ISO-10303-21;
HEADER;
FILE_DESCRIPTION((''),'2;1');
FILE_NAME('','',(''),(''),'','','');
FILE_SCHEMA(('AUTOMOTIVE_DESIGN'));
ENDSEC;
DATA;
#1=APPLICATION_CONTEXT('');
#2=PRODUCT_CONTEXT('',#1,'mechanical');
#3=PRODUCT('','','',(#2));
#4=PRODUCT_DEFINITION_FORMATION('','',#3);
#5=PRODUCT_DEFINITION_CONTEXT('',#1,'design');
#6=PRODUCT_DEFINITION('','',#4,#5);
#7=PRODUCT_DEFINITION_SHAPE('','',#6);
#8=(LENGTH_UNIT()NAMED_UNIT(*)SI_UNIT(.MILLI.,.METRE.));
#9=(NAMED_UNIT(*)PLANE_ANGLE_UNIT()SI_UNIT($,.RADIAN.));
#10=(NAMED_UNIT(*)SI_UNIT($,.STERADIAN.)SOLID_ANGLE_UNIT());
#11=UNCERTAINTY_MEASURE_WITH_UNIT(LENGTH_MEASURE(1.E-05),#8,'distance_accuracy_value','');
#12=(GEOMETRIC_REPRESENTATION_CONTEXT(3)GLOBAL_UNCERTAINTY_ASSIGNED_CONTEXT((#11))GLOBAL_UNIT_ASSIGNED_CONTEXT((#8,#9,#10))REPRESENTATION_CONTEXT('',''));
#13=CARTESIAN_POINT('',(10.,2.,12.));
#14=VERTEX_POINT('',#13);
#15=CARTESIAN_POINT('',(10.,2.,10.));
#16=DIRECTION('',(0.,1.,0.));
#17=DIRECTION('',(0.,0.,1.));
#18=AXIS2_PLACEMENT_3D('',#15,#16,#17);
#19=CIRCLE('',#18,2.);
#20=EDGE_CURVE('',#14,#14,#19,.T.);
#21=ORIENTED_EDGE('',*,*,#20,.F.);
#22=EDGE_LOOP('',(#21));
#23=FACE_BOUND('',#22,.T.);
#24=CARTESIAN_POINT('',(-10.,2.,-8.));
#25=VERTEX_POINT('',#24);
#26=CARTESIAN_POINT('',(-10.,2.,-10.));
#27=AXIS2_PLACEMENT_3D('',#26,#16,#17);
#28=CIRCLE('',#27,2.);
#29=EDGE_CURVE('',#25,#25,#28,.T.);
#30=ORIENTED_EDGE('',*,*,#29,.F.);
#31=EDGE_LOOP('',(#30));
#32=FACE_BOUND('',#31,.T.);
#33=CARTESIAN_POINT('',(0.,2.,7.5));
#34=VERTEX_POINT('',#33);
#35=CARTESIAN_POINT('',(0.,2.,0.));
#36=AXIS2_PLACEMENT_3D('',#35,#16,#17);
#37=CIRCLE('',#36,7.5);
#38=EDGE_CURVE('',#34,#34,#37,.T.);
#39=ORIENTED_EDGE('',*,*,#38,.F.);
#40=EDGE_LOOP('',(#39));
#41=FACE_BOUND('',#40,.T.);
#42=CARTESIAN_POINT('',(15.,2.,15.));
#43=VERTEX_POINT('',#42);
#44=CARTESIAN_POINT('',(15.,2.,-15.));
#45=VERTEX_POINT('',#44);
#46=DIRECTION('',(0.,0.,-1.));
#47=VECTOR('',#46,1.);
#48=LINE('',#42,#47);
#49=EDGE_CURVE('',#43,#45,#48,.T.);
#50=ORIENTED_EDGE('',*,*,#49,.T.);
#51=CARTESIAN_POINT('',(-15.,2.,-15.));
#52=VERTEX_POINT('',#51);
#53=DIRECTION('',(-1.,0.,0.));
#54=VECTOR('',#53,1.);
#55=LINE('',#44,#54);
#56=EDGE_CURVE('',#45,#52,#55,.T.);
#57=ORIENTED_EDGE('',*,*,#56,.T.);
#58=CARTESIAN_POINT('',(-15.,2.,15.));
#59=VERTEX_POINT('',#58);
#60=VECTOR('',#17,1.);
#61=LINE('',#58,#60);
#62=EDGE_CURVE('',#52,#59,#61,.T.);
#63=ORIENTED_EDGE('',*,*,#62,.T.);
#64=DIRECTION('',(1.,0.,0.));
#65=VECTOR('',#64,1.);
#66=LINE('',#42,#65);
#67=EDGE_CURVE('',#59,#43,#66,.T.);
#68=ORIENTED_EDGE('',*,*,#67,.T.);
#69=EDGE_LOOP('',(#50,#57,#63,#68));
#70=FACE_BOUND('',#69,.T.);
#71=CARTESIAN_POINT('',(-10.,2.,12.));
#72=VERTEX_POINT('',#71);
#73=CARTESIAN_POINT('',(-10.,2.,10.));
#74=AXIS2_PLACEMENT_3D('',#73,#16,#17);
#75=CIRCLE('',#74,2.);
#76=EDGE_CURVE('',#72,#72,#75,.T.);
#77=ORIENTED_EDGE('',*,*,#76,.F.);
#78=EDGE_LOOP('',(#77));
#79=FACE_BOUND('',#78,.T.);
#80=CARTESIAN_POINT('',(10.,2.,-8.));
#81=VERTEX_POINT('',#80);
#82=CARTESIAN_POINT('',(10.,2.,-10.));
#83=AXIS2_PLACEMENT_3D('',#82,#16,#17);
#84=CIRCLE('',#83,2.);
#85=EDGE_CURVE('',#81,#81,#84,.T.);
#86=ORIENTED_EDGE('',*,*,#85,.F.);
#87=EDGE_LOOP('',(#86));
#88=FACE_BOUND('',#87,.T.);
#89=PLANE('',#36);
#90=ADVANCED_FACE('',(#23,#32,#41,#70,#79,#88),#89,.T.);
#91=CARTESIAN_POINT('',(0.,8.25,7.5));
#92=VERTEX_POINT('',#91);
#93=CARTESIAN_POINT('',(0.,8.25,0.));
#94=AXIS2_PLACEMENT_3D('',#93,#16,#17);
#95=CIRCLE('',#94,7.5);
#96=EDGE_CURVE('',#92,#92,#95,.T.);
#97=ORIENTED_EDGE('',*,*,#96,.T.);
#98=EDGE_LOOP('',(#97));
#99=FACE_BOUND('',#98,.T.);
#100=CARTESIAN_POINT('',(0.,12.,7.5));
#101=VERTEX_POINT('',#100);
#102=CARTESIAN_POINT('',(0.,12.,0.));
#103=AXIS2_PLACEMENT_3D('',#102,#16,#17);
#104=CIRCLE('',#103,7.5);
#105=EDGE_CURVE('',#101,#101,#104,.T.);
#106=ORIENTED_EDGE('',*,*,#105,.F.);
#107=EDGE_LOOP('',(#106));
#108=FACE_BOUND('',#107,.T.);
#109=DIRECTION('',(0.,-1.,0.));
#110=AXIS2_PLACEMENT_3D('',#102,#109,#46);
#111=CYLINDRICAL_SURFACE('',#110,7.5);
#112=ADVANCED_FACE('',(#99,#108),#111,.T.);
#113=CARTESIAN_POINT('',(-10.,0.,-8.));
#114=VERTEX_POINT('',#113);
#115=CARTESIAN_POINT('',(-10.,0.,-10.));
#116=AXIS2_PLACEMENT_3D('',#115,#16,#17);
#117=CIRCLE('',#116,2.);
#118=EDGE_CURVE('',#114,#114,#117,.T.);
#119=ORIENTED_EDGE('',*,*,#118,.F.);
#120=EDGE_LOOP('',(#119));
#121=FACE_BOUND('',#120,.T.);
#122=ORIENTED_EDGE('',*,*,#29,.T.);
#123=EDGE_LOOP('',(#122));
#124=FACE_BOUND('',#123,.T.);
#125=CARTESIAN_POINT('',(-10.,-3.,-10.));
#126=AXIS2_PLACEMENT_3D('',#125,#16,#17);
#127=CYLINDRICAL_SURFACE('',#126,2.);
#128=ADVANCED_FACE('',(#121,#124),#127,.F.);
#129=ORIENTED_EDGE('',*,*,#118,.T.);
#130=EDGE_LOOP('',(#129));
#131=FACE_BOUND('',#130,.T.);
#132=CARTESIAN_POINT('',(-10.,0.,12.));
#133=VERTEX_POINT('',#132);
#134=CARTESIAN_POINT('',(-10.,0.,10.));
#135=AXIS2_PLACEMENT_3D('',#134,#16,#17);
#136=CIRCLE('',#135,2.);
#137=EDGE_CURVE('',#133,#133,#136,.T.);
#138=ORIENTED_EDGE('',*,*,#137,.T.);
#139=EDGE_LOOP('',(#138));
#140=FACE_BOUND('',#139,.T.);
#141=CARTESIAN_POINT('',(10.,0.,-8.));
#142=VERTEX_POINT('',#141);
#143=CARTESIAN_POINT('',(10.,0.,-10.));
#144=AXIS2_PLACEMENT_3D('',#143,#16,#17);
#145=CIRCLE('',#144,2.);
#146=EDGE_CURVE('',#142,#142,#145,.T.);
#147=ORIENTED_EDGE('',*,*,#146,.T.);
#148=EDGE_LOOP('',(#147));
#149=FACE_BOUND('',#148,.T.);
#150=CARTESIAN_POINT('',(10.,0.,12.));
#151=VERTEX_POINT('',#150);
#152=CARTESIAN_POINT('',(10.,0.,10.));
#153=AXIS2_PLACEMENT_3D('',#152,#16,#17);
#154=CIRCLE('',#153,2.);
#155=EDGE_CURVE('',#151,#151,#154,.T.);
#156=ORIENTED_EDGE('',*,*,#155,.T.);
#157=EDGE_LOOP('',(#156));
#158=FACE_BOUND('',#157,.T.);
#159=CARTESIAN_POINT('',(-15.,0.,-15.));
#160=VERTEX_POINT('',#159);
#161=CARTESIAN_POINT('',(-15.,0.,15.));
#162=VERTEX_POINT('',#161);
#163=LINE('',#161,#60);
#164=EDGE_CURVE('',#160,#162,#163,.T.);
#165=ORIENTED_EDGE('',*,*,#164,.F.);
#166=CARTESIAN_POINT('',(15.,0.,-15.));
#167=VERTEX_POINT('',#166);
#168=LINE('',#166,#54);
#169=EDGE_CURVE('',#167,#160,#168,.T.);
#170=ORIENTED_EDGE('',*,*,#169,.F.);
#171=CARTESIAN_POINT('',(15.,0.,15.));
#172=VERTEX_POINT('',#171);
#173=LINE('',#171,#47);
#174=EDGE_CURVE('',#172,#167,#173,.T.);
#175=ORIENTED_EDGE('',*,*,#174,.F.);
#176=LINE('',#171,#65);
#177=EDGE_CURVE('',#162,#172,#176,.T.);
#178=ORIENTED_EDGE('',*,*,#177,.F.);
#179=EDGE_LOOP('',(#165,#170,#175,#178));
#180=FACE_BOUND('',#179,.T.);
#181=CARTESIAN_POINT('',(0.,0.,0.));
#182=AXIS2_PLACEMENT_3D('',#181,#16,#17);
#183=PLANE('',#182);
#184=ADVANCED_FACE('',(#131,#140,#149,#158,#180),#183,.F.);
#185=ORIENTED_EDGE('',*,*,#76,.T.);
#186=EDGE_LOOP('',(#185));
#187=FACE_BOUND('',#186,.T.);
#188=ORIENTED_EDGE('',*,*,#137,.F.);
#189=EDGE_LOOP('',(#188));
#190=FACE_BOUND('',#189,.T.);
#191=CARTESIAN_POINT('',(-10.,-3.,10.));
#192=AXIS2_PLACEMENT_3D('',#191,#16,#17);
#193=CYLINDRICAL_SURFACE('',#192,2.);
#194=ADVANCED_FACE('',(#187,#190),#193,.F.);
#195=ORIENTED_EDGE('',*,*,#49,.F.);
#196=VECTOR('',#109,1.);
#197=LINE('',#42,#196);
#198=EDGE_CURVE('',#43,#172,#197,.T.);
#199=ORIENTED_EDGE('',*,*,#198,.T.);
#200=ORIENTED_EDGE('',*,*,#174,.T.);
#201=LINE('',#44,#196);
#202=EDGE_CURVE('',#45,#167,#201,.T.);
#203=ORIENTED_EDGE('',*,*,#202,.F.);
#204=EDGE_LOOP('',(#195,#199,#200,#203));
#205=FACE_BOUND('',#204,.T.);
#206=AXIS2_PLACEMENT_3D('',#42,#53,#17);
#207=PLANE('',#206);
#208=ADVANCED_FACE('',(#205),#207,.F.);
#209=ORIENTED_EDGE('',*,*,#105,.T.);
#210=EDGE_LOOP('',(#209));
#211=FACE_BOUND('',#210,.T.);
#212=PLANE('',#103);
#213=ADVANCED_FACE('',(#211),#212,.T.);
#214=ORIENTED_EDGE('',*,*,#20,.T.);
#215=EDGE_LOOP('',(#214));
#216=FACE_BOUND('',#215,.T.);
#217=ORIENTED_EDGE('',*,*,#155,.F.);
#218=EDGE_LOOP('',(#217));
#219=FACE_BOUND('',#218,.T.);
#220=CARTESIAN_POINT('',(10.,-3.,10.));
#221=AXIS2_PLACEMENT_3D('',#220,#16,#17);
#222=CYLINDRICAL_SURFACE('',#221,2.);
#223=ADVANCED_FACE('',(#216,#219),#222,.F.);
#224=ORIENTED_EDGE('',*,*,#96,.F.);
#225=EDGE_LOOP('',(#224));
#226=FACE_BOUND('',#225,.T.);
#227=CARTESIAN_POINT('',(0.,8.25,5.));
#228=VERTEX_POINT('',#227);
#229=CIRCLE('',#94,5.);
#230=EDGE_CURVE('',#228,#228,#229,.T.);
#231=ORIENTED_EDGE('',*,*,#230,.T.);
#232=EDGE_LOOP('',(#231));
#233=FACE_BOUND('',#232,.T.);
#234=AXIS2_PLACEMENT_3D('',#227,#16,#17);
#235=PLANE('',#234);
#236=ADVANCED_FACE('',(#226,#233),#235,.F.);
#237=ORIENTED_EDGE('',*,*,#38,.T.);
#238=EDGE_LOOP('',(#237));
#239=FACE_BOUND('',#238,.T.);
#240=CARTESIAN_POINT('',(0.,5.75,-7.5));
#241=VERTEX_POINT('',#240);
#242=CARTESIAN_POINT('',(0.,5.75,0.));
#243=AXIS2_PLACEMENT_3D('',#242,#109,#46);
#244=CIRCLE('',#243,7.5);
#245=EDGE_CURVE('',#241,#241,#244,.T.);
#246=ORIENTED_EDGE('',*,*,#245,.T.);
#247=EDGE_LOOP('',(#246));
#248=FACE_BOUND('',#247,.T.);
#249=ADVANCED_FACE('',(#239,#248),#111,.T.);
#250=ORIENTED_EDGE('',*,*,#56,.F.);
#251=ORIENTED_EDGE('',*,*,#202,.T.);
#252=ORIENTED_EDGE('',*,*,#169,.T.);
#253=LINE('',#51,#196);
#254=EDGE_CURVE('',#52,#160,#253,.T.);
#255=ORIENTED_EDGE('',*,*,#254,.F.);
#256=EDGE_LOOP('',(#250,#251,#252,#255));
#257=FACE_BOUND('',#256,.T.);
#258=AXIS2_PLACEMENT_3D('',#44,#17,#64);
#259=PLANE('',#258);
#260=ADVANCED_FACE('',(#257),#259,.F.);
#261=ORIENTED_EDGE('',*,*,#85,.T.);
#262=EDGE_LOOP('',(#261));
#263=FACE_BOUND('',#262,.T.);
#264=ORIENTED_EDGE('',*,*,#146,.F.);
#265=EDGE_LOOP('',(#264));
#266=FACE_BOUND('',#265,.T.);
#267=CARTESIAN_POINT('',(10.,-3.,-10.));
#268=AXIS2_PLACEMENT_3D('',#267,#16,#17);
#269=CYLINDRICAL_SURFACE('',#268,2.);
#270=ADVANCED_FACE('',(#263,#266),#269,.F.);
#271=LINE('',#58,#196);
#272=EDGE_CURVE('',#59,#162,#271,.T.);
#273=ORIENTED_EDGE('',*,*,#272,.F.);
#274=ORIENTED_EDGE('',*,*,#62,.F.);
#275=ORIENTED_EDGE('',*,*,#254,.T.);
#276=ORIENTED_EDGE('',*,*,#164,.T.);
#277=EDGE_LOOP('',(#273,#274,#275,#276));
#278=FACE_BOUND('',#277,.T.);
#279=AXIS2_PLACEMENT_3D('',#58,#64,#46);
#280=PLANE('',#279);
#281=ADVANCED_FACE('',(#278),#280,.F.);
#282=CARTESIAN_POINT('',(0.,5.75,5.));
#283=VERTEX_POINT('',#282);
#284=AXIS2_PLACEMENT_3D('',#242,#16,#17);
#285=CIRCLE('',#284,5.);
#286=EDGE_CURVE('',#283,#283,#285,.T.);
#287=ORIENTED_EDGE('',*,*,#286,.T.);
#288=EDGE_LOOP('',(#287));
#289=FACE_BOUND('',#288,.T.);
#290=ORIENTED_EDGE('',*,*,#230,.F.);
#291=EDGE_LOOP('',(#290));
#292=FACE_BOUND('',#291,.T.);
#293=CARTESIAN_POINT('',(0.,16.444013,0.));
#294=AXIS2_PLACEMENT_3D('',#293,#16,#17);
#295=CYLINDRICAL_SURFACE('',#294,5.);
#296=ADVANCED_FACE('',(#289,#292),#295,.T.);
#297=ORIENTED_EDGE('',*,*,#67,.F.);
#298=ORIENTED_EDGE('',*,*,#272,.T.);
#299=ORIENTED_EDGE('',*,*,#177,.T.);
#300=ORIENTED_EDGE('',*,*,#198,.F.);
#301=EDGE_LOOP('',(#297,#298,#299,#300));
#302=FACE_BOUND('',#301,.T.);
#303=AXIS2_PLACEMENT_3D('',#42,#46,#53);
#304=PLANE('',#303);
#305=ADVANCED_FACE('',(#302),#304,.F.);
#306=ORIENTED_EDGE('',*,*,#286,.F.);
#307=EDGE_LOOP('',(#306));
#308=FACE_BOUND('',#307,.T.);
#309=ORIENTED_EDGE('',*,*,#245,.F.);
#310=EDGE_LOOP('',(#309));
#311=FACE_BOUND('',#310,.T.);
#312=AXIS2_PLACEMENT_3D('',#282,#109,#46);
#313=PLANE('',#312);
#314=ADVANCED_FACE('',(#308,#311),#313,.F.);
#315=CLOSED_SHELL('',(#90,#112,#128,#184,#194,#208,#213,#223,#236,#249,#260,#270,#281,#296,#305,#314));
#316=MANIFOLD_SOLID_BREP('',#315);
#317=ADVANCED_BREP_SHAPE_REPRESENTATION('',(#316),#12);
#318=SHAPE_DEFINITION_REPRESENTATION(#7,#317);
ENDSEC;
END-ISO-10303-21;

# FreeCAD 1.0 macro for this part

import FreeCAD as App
import Part
import Sketcher
Q = App.Units.Quantity

doc = App.newDocument("Part")
params = doc.addObject("Spreadsheet::Sheet", "Params")
for row, (alias, value) in enumerate([
    ("sketch1_width", "30 mm"),
    ("pad1_length", "2 mm"),
    ("sketch2_diameter", "4 mm"),
    ("pocket1_length", "5 mm"),
    ("sketch3_diameter", "15 mm"),
    ("pad2_length", "10 mm"),
    ("sketch4_height", "5 mm"),
    ("sketch4_width", "2.5 mm"),
    ("groove_angle", "360 deg"),
], start=1):
    params.set(f"A{row}", alias)
    params.set(f"B{row}", "=" + value)
    params.setAlias(f"B{row}", alias)

body = doc.addObject("PartDesign::Body", "Body")

# Sketch on XZ plane
sketch1 = body.newObject("Sketcher::SketchObject", "Sketch")
sketch1.AttachmentSupport = (doc.getObject("XZ_Plane"), [""])
sketch1.MapMode = "FlatFace"
sketch1.addGeometry([
    Part.LineSegment(App.Vector(-15, -15, 0), App.Vector(-15, 15, 0)),
    Part.LineSegment(App.Vector(-15, 15, 0), App.Vector(15, 15, 0)),
    Part.LineSegment(App.Vector(15, 15, 0), App.Vector(15, -15, 0)),
    Part.LineSegment(App.Vector(15, -15, 0), App.Vector(-15, -15, 0)),
], False)
sketch1.addConstraint([
    Sketcher.Constraint("Coincident", 0, 2, 1, 1),
    Sketcher.Constraint("Coincident", 1, 2, 2, 1),
    Sketcher.Constraint("Coincident", 2, 2, 3, 1),
    Sketcher.Constraint("Coincident", 3, 2, 0, 1),
    Sketcher.Constraint("Vertical", 0),
    Sketcher.Constraint("Horizontal", 1),
    Sketcher.Constraint("Vertical", 2),
    Sketcher.Constraint("Horizontal", 3),
    Sketcher.Constraint("Symmetric", 0, 2, 2, 2, -1, 1),
    Sketcher.Constraint("Equal", 3, 0),
    Sketcher.Constraint("DistanceX", 1, 1, 1, 2, Q("30 mm")),
])
sketch1.setExpression("Constraints[10]", "Params.sketch1_width")
pad1 = body.newObject("PartDesign::Pad", "Pad")
pad1.Profile = sketch1
pad1.setExpression("Length", "Params.pad1_length")
pad1.Reversed = True

# Sketch on XZ plane
sketch2 = body.newObject("Sketcher::SketchObject", "Sketch001")
sketch2.AttachmentSupport = (doc.getObject("XZ_Plane"), [""])
sketch2.MapMode = "FlatFace"
sketch2.AttachmentOffset = App.Placement(App.Vector(0, 0, -2), App.Rotation())
sketch2.addGeometry([
    Part.Circle(App.Vector(-10, -10, 0), App.Vector(0, 0, 1), 2),
    Part.Circle(App.Vector(10, -10, 0), App.Vector(0, 0, 1), 2),
    Part.Circle(App.Vector(10, 10, 0), App.Vector(0, 0, 1), 2),
    Part.Circle(App.Vector(-10, 10, 0), App.Vector(0, 0, 1), 2),
], False)
sketch2.addConstraint([
    Sketcher.Constraint("Equal", 0, 1),
    Sketcher.Constraint("Equal", 1, 2),
    Sketcher.Constraint("Equal", 2, 3),
    Sketcher.Constraint("Symmetric", 0, 3, 2, 3, -1, 1),
    Sketcher.Constraint("Symmetric", 1, 3, 3, 3, -1, 1),
    Sketcher.Constraint("Symmetric", 0, 3, 1, 3, -2),
    Sketcher.Constraint("Diameter", 0, Q("4 mm")),
    Sketcher.Constraint("DistanceX", 0, 3, -1, 1, Q("10 mm")),
    Sketcher.Constraint("DistanceY", 0, 3, -1, 1, Q("10 mm")),
])
sketch2.setExpression("Constraints[6]", "Params.sketch2_diameter")
pocket1 = body.newObject("PartDesign::Pocket", "Pocket")
pocket1.Profile = sketch2
pocket1.setExpression("Length", "Params.pocket1_length")
pocket1.Reversed = True

# Sketch on XZ plane
sketch3 = body.newObject("Sketcher::SketchObject", "Sketch002")
sketch3.AttachmentSupport = (doc.getObject("XZ_Plane"), [""])
sketch3.MapMode = "FlatFace"
sketch3.AttachmentOffset = App.Placement(App.Vector(0, 0, -2), App.Rotation())
sketch3.addGeometry(Part.Circle(App.Vector(0, 0, 0), App.Vector(0, 0, 1), 8), False)
sketch3.addConstraint([
    Sketcher.Constraint("Coincident", 0, 3, -1, 1),
    Sketcher.Constraint("Diameter", 0, Q("15 mm")),
])
sketch3.setExpression("Constraints[1]", "Params.sketch3_diameter")
pad2 = body.newObject("PartDesign::Pad", "Pad001")
pad2.Profile = sketch3
pad2.setExpression("Length", "Params.pad2_length")
pad2.Reversed = True

# Sketch on YZ plane
sketch4 = body.newObject("Sketcher::SketchObject", "Sketch003")
sketch4.AttachmentSupport = (doc.getObject("YZ_Plane"), [""])
sketch4.MapMode = "FlatFace"
sketch4.addGeometry([
    Part.LineSegment(App.Vector(8.2, 10, 0), App.Vector(5.8, 10, 0)),
    Part.LineSegment(App.Vector(5.8, 10, 0), App.Vector(5.8, 5, 0)),
    Part.LineSegment(App.Vector(5.8, 5, 0), App.Vector(8.2, 5, 0)),
    Part.LineSegment(App.Vector(8.2, 5, 0), App.Vector(8.2, 10, 0)),
], False)
sketch4.addConstraint([
    Sketcher.Constraint("Coincident", 0, 2, 1, 1),
    Sketcher.Constraint("Coincident", 1, 2, 2, 1),
    Sketcher.Constraint("Coincident", 2, 2, 3, 1),
    Sketcher.Constraint("Coincident", 3, 2, 0, 1),
    Sketcher.Constraint("Horizontal", 0),
    Sketcher.Constraint("Vertical", 1),
    Sketcher.Constraint("Horizontal", 2),
    Sketcher.Constraint("Vertical", 3),
    Sketcher.Constraint("DistanceY", 1, 2, 1, 1, Q("5 mm")),
    Sketcher.Constraint("DistanceX", 0, 2, 0, 1, Q("2.5 mm")),
    Sketcher.Constraint("DistanceY", -1, 1, 0, 2, Q("10 mm")),
    Sketcher.Constraint("DistanceX", -1, 1, 0, 2, Q("5.75 mm")),
])
sketch4.setExpression("Constraints[8]", "Params.sketch4_height")
sketch4.setExpression("Constraints[9]", "Params.sketch4_width")
groove = body.newObject("PartDesign::Groove", "Groove")
groove.Profile = sketch4
groove.ReferenceAxis = (sketch4, ["H_Axis"])
groove.setExpression("Angle", "Params.groove_angle")

doc.recompute()
